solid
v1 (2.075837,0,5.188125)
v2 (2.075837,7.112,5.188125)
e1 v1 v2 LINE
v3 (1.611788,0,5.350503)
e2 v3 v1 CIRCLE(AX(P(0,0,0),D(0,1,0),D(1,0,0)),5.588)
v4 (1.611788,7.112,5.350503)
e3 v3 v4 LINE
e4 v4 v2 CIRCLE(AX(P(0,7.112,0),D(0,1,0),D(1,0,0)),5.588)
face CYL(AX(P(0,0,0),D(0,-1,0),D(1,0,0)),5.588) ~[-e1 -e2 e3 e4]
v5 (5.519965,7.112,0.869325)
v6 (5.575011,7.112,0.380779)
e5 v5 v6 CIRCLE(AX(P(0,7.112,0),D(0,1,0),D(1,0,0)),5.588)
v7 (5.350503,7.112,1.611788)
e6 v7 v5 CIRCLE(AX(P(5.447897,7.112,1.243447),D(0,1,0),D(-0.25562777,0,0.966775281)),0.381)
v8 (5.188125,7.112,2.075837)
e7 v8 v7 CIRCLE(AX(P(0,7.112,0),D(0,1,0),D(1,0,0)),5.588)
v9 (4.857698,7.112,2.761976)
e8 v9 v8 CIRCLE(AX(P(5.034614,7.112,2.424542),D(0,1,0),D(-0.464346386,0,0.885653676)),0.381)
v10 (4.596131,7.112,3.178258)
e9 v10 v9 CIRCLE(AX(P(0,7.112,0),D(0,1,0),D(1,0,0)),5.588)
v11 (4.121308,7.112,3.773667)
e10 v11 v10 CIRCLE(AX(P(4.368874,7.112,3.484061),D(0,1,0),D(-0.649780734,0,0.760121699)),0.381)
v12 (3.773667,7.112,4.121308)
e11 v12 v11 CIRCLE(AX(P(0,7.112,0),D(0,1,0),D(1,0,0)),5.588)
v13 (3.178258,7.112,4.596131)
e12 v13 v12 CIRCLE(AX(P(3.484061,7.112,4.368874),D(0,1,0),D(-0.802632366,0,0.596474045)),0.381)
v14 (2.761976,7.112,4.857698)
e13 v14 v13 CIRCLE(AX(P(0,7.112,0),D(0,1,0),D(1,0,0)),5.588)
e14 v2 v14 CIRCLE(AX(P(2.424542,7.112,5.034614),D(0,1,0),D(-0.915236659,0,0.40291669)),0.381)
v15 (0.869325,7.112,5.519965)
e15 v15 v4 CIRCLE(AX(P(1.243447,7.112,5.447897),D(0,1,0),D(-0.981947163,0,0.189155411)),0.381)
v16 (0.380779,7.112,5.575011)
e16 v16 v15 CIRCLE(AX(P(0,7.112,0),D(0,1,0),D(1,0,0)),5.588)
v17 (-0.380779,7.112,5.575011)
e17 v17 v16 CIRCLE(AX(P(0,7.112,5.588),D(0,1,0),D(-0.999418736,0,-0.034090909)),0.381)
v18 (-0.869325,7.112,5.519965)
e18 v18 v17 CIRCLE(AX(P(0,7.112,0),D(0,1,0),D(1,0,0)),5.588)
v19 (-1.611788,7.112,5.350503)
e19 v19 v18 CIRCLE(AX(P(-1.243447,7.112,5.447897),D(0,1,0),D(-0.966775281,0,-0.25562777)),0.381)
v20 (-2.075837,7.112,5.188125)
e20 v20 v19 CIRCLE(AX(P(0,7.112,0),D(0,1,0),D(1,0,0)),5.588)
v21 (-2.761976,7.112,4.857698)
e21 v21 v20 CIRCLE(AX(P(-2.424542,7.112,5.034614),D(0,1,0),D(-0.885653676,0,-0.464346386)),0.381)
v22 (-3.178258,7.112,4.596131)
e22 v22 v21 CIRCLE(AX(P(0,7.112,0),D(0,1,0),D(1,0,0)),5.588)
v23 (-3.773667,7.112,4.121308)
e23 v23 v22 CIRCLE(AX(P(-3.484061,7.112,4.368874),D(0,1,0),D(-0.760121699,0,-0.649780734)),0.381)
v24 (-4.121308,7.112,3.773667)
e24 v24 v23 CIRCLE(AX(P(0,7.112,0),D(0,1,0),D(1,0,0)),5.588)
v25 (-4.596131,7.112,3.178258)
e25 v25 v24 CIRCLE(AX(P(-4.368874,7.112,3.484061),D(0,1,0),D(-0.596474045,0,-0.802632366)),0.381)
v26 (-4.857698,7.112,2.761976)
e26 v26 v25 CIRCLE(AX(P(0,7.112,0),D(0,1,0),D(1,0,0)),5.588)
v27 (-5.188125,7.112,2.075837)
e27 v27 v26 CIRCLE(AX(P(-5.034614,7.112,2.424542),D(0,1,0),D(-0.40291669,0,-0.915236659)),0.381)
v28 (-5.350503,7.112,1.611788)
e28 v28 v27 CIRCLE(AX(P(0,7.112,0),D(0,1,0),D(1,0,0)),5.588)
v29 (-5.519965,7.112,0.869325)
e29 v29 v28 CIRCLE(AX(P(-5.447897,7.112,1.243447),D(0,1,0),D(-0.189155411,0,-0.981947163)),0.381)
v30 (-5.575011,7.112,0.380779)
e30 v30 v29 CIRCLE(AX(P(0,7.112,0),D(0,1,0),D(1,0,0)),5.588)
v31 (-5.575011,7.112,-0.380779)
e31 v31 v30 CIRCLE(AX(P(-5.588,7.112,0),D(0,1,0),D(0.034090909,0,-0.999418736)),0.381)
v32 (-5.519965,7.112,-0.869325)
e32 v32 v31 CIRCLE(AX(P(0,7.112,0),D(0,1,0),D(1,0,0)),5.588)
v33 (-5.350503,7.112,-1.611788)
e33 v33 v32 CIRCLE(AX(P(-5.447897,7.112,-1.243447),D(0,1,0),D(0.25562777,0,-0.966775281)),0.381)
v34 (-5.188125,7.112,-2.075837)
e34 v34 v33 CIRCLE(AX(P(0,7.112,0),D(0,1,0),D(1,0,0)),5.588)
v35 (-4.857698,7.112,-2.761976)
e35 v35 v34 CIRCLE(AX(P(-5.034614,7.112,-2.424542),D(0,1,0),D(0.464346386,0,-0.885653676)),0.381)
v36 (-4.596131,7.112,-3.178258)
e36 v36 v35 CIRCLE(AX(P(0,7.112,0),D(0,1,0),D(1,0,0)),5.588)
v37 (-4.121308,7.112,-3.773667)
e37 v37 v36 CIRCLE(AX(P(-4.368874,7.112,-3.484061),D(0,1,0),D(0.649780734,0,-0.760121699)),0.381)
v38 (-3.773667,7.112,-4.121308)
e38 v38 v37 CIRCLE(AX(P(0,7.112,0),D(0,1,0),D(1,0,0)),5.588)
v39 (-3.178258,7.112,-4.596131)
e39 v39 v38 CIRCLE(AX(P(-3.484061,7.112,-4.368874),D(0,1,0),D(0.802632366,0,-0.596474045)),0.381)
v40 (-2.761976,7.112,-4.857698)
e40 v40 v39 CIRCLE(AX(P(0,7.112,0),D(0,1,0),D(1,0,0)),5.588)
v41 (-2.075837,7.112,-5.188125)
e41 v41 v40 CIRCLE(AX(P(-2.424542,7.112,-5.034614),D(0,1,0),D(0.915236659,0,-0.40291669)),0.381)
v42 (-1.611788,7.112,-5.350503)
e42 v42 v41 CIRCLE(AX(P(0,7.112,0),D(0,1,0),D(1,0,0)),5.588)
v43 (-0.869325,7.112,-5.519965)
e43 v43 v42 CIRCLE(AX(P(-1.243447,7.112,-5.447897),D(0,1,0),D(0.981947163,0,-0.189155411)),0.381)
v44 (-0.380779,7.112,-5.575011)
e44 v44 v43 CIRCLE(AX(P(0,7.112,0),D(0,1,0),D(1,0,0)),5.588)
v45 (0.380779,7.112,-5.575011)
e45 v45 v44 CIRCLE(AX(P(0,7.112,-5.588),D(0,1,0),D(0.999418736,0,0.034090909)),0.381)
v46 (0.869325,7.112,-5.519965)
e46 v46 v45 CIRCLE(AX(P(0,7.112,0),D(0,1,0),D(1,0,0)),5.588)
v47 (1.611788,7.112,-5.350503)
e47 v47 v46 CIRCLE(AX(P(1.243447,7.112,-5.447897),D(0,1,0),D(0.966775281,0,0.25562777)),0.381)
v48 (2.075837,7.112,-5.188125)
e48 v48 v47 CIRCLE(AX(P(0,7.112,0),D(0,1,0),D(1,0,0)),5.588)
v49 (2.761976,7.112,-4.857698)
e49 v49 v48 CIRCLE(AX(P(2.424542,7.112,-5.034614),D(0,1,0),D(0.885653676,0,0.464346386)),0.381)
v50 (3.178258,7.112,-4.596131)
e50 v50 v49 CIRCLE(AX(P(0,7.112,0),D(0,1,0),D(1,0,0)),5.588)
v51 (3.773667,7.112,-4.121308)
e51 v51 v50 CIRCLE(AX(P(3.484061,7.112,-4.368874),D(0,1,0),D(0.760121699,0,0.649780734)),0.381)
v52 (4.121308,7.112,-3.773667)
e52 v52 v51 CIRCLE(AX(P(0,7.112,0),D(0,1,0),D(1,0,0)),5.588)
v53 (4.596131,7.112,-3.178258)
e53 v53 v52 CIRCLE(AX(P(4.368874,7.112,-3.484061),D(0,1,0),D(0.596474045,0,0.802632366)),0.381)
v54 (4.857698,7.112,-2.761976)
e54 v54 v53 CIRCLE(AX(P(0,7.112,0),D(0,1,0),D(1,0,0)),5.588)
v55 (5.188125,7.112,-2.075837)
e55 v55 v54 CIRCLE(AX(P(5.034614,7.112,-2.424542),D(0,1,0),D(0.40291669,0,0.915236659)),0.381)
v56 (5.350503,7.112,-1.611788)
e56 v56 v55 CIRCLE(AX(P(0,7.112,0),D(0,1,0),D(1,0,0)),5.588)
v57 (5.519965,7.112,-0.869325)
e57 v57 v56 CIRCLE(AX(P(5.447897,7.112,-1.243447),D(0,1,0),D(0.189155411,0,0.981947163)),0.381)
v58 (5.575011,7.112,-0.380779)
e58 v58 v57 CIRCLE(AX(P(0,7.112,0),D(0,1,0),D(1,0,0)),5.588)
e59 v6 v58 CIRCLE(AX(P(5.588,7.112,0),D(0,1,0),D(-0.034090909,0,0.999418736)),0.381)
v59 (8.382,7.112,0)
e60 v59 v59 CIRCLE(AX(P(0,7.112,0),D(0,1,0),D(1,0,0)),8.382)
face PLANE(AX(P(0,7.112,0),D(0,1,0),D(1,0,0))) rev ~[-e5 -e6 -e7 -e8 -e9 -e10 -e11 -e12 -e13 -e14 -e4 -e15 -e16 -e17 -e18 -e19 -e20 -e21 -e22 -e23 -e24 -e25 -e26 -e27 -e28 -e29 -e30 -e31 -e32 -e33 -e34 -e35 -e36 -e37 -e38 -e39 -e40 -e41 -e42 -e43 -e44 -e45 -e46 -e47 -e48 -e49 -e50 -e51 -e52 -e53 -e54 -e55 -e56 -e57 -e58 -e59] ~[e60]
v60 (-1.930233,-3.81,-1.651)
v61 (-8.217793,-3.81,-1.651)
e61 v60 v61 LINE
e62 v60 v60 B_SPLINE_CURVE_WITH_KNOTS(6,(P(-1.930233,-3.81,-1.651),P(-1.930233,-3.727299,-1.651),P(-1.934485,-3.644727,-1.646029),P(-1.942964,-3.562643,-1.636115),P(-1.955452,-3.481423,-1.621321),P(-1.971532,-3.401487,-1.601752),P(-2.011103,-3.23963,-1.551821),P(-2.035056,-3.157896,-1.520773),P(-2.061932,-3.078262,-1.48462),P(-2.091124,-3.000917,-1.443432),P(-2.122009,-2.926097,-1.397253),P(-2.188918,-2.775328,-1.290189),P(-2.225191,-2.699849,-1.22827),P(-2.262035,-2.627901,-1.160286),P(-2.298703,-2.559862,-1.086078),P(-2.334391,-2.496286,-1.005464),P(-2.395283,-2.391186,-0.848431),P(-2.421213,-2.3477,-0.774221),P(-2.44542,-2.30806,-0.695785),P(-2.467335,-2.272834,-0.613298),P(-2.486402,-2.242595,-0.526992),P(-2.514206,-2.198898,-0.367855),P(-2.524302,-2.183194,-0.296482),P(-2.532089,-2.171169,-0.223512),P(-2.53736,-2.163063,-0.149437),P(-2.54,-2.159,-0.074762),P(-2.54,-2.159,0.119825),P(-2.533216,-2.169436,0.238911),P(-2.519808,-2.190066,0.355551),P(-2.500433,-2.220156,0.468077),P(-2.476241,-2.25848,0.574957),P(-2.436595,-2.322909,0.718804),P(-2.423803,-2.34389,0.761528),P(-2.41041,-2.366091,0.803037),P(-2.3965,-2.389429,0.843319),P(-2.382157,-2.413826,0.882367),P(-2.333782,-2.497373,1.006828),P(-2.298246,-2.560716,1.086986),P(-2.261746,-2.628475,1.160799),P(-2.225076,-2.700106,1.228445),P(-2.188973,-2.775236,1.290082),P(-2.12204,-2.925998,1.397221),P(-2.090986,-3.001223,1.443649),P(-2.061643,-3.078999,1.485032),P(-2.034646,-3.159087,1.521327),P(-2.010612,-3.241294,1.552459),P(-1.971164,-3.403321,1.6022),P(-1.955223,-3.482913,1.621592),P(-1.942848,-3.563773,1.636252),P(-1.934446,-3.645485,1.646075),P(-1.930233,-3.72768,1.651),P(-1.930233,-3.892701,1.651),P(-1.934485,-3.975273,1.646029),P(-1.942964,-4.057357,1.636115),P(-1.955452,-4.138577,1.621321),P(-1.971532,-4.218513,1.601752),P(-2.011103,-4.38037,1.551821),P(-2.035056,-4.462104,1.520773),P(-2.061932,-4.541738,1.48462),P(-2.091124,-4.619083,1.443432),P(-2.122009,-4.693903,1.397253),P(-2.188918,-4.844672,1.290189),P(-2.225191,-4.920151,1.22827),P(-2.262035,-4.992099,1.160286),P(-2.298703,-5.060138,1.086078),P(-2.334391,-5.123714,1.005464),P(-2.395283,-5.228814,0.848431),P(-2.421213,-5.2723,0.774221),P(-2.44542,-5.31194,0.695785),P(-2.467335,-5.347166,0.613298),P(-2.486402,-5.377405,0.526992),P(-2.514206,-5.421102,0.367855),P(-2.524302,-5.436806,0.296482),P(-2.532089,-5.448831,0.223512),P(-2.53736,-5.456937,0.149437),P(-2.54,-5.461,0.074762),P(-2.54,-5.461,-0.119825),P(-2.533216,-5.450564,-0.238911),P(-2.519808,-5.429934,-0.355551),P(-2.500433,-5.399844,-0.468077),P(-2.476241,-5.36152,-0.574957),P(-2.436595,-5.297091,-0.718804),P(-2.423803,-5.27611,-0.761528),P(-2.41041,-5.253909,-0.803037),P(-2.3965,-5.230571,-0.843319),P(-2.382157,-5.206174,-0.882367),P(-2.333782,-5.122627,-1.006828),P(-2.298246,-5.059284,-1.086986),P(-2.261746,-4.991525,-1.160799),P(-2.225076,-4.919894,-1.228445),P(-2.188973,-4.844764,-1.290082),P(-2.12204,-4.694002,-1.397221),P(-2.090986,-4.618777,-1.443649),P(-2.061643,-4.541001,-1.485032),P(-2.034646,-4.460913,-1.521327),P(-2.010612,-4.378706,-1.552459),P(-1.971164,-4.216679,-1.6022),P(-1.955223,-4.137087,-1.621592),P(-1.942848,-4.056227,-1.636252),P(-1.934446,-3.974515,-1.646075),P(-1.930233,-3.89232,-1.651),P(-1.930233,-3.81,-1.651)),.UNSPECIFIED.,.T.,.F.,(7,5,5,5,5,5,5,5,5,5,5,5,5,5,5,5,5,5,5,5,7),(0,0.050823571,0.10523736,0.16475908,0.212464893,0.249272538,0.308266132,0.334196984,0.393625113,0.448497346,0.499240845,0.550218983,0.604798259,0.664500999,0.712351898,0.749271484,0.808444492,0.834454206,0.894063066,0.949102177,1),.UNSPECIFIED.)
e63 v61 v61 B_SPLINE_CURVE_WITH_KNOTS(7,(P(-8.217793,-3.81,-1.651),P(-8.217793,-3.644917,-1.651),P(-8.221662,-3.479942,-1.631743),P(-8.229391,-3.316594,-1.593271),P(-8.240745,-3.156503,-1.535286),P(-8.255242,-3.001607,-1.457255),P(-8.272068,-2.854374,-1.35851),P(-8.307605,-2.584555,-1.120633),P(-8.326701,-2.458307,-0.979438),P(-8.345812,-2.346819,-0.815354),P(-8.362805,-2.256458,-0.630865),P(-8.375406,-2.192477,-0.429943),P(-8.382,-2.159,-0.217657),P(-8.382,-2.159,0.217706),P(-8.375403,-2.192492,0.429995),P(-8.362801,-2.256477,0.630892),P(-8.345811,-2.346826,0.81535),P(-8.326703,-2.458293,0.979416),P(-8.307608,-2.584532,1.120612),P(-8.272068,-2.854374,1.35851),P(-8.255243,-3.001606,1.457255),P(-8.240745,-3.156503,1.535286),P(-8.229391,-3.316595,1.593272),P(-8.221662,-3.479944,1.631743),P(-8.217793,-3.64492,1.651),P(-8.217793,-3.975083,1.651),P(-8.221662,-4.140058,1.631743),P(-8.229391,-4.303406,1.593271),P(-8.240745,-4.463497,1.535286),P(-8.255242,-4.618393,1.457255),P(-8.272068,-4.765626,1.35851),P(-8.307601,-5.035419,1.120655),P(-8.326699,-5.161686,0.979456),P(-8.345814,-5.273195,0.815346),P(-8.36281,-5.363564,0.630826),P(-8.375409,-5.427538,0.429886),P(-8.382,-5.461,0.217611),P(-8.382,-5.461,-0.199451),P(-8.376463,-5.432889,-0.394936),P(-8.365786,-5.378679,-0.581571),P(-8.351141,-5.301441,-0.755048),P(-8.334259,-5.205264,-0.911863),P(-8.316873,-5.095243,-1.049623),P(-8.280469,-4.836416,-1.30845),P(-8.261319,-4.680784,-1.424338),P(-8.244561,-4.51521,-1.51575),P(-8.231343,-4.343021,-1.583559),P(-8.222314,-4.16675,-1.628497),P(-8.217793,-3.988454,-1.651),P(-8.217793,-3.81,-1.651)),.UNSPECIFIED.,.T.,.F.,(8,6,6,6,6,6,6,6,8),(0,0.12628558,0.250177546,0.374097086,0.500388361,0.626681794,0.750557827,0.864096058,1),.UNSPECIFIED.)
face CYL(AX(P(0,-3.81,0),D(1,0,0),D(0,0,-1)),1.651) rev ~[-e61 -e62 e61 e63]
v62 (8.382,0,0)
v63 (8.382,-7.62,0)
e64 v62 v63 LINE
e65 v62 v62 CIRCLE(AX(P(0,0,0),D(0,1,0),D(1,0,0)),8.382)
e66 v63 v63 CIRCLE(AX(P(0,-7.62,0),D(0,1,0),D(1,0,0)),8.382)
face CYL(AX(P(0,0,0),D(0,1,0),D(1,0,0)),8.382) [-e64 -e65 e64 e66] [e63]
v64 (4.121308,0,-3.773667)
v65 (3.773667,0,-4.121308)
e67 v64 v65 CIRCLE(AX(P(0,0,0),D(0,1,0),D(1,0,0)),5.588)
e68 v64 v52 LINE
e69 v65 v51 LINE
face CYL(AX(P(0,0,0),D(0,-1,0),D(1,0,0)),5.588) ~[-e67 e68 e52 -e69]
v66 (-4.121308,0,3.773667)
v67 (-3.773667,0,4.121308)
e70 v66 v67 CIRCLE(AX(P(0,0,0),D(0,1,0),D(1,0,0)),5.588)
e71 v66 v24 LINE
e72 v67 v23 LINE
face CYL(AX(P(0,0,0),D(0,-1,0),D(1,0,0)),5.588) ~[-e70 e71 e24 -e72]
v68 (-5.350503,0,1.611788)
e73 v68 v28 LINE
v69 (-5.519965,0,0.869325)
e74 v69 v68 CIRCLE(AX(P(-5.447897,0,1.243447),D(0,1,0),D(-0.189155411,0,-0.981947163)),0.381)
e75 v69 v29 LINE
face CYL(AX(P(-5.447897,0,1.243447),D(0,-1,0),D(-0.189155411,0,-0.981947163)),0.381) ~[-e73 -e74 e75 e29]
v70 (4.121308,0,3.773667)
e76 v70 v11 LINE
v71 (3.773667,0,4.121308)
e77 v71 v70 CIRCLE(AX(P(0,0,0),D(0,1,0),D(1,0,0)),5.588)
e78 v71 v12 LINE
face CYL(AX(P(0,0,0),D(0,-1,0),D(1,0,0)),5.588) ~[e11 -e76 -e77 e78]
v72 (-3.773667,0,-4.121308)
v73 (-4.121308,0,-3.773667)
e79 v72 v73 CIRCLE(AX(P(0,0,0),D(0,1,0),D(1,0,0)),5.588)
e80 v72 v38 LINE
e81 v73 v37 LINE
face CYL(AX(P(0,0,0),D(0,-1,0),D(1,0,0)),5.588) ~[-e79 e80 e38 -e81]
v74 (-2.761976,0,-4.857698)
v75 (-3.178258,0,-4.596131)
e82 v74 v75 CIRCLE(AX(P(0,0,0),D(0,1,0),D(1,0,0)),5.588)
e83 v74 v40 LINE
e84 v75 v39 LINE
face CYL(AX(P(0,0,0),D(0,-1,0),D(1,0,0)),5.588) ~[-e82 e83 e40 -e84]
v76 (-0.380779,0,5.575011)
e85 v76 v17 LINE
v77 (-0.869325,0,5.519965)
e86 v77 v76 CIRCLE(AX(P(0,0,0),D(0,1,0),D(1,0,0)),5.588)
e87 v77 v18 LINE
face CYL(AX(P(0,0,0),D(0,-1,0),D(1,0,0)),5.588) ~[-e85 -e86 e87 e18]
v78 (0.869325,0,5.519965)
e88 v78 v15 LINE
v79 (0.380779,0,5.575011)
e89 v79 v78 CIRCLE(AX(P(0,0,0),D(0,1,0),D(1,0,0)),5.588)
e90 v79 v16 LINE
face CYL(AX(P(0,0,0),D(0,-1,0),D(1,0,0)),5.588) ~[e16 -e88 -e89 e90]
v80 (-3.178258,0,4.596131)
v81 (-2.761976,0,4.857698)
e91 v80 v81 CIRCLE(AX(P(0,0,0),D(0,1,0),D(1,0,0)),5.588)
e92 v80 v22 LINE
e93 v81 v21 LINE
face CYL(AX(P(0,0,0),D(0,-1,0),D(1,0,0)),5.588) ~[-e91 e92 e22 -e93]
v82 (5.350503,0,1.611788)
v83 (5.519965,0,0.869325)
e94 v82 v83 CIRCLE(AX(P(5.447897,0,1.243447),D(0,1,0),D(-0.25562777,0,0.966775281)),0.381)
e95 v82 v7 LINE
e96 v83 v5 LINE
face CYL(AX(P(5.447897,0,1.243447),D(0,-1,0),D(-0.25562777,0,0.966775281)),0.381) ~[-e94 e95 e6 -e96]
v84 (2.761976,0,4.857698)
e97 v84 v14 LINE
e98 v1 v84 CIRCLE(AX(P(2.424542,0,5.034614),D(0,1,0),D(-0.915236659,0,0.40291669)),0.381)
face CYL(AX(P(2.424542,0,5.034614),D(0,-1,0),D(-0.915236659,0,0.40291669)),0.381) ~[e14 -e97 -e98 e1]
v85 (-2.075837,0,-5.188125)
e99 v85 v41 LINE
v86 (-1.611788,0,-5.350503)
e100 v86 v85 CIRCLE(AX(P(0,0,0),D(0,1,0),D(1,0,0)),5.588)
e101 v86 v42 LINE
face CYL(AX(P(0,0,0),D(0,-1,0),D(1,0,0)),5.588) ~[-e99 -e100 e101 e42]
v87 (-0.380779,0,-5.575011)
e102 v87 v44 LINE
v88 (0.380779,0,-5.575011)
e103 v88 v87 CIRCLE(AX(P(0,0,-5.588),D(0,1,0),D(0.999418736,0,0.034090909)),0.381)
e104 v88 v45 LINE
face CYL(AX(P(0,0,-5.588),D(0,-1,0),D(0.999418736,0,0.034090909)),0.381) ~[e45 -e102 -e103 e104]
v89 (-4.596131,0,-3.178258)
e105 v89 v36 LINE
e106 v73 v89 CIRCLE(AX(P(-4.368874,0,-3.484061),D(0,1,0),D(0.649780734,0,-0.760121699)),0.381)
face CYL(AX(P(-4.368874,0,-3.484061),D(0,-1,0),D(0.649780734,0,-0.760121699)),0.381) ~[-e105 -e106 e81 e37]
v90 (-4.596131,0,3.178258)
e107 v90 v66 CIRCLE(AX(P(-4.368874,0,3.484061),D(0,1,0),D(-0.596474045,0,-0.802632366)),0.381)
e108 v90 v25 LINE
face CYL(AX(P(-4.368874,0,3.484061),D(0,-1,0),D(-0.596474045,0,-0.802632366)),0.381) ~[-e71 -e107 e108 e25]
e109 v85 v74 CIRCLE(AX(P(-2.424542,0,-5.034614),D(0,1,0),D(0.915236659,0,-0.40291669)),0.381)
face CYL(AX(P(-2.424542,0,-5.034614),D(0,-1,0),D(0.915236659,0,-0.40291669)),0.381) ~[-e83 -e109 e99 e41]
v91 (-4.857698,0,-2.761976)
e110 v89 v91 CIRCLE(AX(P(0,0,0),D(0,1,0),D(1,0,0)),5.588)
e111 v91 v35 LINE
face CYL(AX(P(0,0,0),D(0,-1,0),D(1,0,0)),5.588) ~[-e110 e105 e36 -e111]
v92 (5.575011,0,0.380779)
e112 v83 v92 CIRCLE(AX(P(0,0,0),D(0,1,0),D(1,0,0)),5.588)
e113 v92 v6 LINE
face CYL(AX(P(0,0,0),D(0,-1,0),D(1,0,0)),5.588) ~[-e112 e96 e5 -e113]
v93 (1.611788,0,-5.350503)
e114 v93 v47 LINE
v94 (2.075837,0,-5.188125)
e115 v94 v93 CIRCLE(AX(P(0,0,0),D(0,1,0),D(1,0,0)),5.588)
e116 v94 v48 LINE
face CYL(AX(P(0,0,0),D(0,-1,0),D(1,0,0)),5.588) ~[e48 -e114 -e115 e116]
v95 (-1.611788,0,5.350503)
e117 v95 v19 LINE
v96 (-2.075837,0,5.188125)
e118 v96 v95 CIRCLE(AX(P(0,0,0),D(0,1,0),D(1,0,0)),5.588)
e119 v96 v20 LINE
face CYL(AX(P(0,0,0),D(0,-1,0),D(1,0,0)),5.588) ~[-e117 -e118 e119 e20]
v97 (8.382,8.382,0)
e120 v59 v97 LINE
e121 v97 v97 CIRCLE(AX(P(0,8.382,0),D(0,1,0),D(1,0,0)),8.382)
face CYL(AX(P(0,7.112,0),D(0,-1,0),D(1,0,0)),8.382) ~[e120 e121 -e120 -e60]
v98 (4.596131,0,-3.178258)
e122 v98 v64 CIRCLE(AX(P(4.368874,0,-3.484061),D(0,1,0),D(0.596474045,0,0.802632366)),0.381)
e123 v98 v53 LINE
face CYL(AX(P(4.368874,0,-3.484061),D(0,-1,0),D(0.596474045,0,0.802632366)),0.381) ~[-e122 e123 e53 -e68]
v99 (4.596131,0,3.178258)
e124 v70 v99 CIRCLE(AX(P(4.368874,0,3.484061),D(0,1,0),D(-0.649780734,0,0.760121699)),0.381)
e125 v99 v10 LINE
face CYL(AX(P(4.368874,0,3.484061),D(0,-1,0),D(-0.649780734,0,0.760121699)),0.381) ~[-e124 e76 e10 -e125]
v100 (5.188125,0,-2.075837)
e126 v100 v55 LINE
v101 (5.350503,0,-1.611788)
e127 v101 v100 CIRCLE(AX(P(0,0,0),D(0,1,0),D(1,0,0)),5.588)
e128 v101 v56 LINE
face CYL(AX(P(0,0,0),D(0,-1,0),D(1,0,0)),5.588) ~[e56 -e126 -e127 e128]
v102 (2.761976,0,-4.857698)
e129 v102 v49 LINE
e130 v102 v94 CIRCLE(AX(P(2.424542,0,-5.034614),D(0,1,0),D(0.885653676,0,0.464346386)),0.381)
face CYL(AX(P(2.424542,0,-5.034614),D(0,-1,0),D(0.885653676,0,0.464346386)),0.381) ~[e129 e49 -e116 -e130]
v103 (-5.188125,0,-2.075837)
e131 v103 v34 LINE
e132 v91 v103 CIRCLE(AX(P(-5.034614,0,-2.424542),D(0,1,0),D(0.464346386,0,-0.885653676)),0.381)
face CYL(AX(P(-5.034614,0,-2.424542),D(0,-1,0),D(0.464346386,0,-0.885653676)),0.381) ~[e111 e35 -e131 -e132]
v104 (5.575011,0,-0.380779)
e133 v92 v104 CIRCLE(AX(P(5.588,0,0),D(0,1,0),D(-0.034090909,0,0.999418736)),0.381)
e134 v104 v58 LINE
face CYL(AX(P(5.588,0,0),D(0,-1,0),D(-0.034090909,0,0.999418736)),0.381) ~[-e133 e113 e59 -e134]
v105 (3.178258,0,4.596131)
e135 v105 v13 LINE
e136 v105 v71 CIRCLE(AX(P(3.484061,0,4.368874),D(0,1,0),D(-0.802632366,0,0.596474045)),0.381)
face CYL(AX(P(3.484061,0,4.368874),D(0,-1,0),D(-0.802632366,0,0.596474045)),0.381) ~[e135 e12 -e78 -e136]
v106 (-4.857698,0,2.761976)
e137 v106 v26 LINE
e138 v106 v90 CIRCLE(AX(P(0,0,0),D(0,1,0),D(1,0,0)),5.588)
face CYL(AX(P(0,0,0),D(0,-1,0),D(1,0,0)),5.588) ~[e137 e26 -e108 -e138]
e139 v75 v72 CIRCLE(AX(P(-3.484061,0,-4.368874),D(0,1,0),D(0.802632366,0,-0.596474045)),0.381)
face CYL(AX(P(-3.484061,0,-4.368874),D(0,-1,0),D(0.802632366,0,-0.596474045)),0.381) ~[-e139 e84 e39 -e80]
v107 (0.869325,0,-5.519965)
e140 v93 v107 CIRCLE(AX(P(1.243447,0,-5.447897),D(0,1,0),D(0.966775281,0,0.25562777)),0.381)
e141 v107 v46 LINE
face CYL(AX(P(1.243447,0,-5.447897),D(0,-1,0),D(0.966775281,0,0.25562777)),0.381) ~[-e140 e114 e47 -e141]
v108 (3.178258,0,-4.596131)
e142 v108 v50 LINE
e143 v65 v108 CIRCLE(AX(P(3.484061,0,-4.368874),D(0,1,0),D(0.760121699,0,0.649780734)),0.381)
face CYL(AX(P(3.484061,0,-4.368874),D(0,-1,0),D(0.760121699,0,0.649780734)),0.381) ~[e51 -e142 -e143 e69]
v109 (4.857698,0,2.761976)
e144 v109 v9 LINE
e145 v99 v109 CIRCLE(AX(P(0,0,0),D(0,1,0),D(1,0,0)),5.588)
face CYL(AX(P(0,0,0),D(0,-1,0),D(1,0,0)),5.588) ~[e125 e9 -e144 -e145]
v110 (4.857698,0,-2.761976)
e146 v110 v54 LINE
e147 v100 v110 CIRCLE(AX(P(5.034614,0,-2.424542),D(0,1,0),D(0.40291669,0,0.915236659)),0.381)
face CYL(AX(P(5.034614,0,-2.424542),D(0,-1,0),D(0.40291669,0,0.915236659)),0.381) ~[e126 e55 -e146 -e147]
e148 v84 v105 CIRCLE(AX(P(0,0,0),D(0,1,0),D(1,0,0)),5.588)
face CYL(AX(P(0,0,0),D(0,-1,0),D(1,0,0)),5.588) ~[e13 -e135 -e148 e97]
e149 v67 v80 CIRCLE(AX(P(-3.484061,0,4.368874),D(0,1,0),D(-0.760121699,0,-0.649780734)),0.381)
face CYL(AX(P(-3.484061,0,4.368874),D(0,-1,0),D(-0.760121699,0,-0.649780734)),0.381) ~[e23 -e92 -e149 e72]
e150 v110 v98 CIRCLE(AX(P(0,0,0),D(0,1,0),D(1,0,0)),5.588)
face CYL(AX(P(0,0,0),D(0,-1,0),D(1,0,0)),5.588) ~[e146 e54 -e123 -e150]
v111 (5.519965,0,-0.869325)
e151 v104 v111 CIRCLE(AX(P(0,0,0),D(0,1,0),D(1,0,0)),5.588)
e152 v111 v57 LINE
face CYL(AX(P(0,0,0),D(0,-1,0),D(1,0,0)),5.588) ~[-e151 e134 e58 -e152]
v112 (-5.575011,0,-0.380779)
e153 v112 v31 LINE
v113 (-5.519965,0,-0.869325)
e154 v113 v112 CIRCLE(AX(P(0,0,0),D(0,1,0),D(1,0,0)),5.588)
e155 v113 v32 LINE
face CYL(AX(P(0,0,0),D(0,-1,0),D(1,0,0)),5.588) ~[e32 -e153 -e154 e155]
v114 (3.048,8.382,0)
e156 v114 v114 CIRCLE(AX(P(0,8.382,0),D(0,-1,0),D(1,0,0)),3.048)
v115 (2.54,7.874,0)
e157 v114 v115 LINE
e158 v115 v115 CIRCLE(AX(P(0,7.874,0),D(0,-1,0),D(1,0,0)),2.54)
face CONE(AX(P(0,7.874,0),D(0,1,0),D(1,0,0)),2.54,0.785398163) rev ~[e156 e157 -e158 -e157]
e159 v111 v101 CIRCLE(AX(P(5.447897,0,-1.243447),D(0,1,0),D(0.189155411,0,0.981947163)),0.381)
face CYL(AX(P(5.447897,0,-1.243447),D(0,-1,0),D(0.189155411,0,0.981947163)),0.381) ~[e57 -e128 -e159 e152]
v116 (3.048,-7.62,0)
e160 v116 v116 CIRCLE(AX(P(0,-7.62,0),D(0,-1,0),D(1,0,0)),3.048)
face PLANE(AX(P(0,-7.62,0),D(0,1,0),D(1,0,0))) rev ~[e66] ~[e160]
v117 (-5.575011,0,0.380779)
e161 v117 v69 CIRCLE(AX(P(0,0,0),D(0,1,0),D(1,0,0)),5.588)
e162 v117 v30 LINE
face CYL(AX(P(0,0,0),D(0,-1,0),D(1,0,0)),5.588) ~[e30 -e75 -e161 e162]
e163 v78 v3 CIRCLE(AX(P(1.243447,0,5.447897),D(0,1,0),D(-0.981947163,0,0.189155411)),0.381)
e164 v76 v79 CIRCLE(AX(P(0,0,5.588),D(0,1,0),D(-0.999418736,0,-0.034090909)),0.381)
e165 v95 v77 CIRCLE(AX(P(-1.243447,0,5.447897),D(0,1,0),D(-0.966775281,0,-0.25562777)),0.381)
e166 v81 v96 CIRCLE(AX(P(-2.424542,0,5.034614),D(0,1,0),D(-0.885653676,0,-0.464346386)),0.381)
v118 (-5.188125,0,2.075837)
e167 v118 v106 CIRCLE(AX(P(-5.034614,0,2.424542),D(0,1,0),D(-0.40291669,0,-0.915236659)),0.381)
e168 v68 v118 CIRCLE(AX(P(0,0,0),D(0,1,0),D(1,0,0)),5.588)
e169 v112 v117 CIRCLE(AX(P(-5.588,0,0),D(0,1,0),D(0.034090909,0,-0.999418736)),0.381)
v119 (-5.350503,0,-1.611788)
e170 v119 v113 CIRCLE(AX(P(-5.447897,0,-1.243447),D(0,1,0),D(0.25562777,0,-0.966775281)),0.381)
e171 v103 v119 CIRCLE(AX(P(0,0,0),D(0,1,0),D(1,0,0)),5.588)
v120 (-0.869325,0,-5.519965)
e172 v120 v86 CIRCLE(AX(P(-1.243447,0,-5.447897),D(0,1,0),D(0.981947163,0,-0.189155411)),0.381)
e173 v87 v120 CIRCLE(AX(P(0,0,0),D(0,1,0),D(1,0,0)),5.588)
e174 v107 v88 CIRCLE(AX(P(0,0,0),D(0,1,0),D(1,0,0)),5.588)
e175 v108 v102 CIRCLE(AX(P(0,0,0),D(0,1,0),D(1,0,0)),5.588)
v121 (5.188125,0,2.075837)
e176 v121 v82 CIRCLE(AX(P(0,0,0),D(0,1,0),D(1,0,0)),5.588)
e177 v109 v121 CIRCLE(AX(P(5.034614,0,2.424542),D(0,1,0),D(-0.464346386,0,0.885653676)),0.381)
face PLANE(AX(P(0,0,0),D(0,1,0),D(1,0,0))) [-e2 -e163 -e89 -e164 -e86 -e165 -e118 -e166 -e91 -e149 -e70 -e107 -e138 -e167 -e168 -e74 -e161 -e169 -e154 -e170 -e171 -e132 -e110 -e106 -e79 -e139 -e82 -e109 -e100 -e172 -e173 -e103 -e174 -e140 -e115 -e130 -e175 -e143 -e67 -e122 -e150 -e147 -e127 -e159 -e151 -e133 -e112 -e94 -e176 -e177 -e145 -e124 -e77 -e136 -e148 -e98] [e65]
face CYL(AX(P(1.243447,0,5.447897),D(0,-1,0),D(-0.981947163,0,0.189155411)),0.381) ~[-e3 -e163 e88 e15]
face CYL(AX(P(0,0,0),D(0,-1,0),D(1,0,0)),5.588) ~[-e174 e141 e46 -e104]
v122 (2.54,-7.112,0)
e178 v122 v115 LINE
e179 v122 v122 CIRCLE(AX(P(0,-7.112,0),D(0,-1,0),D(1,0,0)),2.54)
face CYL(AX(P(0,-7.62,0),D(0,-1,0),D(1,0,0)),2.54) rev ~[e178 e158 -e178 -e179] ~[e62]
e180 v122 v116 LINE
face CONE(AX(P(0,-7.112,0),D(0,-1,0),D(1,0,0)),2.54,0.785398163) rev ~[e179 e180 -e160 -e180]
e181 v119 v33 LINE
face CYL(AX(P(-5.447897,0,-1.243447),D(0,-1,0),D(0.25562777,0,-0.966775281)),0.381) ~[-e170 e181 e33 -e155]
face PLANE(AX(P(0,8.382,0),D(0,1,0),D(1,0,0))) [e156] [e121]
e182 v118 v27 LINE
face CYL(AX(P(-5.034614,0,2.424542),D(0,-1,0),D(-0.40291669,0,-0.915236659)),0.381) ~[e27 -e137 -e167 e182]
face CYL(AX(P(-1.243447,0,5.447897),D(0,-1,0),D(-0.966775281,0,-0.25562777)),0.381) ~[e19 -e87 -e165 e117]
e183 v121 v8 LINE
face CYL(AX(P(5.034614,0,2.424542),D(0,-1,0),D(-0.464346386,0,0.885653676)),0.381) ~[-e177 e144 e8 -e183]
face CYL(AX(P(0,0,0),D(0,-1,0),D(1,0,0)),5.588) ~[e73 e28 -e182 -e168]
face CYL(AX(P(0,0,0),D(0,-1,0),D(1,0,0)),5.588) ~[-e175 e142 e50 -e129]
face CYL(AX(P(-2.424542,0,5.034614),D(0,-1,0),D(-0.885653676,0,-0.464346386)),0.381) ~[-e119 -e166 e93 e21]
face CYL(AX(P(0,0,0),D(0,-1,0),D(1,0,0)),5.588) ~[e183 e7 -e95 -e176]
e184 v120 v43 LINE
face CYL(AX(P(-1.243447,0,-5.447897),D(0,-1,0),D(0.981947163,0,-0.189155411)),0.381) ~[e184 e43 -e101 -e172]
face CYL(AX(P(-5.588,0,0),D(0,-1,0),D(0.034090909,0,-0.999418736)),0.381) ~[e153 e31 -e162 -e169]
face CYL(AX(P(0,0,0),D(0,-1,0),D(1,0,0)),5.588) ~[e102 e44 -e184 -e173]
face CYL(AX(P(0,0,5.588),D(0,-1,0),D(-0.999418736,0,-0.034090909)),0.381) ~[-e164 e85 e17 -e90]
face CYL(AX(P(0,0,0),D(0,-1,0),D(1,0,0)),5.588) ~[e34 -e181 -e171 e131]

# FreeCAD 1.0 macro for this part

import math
import FreeCAD as App
import Part
import Sketcher
from FreeCAD import Vector
Q = App.Units.Quantity


def edges_at(feature, points):
    """Names of the edges that pass closest to the given points."""
    edges = feature.Shape.Edges
    near = lambda p: min(range(len(edges)), key=lambda i: edges[i].distToShape(Part.Vertex(*p))[0])
    return sorted({f"Edge{near(p) + 1}" for p in points})

doc = App.newDocument("Part")
params = doc.addObject("Spreadsheet::Sheet", "Params")
for row, (alias, value) in enumerate([
    ("sketch1_diameter", "0.66 in"),
    ("pad1_length", "0.3 in"),
    ("sketch2_radius", "0.22 in"),
    ("sketch2_radius2", "0.015 in"),
    ("pad2_length", "0.28 in"),
    ("sketch3_diameter", "0.66 in"),
    ("pad3_length", "0.05 in"),
    ("sketch4_diameter", "0.2 in"),
    ("chamfer_size", "0.02 in"),
    ("sketch5_diameter", "0.13 in"),
], start=1):
    params.set(f"A{row}", alias)
    params.set(f"B{row}", "=" + value)
    params.setAlias(f"B{row}", alias)

body = doc.addObject("PartDesign::Body", "Body")

sketch1 = body.newObject("Sketcher::SketchObject", "Sketch")
sketch1.AttachmentSupport = (doc.getObject("XZ_Plane"), [""])
sketch1.MapMode = "FlatFace"
sketch1.addGeometry(Part.Circle(Vector(0, 0, 0), Vector(0, 0, 1), 8), False)
sketch1.addConstraint([
    Sketcher.Constraint("Coincident", 0, 3, -1, 1),
    Sketcher.Constraint("Diameter", 0, Q("0.66 in")),
])
sketch1.setExpression("Constraints[1]", "Params.sketch1_diameter")
pad1 = body.newObject("PartDesign::Pad", "Pad")
pad1.Profile = sketch1
pad1.setExpression("Length", "Params.pad1_length")

sketch2 = body.newObject("Sketcher::SketchObject", "Sketch001")
sketch2.AttachmentSupport = (doc.getObject("XZ_Plane"), [""])
sketch2.MapMode = "FlatFace"
sketch2.addGeometry([
    Part.ArcOfCircle(Part.Circle(Vector(-4.37, -3.48, 0), Vector(0, 0, 1), 0.38), math.radians(127), math.radians(311)),
    Part.ArcOfCircle(Part.Circle(Vector(0, 0, 0), Vector(0, 0, 1), 5.59), math.radians(-150.38), math.radians(-145.34)),
    Part.ArcOfCircle(Part.Circle(Vector(-5.03, -2.42, 0), Vector(0, 0, 1), 0.38), math.radians(114), math.radians(298)),
    Part.ArcOfCircle(Part.Circle(Vector(0, 0, 0), Vector(0, 0, 1), 5.59), math.radians(-163.24), math.radians(-158.19)),
    Part.ArcOfCircle(Part.Circle(Vector(-5.45, -1.24, 0), Vector(0, 0, 1), 0.38), math.radians(101), math.radians(285)),
    Part.ArcOfCircle(Part.Circle(Vector(0, 0, 0), Vector(0, 0, 1), 5.59), math.radians(-176.09), math.radians(-171.05)),
    Part.ArcOfCircle(Part.Circle(Vector(-5.59, 0, 0), Vector(0, 0, 1), 0.38), math.radians(88), math.radians(272)),
    Part.ArcOfCircle(Part.Circle(Vector(0, 0, 0), Vector(0, 0, 1), 5.59), math.radians(171.05), math.radians(176.09)),
    Part.ArcOfCircle(Part.Circle(Vector(-5.45, 1.24, 0), Vector(0, 0, 1), 0.38), math.radians(75), math.radians(259)),
    Part.ArcOfCircle(Part.Circle(Vector(0, 0, 0), Vector(0, 0, 1), 5.59), math.radians(158.19), math.radians(163.24)),
    Part.ArcOfCircle(Part.Circle(Vector(-5.03, 2.42, 0), Vector(0, 0, 1), 0.38), math.radians(62), math.radians(246)),
    Part.ArcOfCircle(Part.Circle(Vector(0, 0, 0), Vector(0, 0, 1), 5.59), math.radians(145.34), math.radians(150.38)),
    Part.ArcOfCircle(Part.Circle(Vector(-4.37, 3.48, 0), Vector(0, 0, 1), 0.38), math.radians(49), math.radians(233)),
    Part.ArcOfCircle(Part.Circle(Vector(0, 0, 0), Vector(0, 0, 1), 5.59), math.radians(132.48), math.radians(137.52)),
    Part.ArcOfCircle(Part.Circle(Vector(-3.48, 4.37, 0), Vector(0, 0, 1), 0.38), math.radians(37), math.radians(221)),
    Part.ArcOfCircle(Part.Circle(Vector(0, 0, 0), Vector(0, 0, 1), 5.59), math.radians(119.62), math.radians(124.66)),
    Part.ArcOfCircle(Part.Circle(Vector(-2.42, 5.03, 0), Vector(0, 0, 1), 0.38), math.radians(24), math.radians(208)),
    Part.ArcOfCircle(Part.Circle(Vector(0, 0, 0), Vector(0, 0, 1), 5.59), math.radians(106.76), math.radians(111.81)),
    Part.ArcOfCircle(Part.Circle(Vector(-1.24, 5.45, 0), Vector(0, 0, 1), 0.38), math.radians(11), math.radians(195)),
    Part.ArcOfCircle(Part.Circle(Vector(0, 0, 0), Vector(0, 0, 1), 5.59), math.radians(93.91), math.radians(98.95)),
    Part.ArcOfCircle(Part.Circle(Vector(0, 5.59, 0), Vector(0, 0, 1), 0.38), math.radians(-2), math.radians(182)),
    Part.ArcOfCircle(Part.Circle(Vector(0, 0, 0), Vector(0, 0, 1), 5.59), math.radians(81.05), math.radians(86.09)),
    Part.ArcOfCircle(Part.Circle(Vector(1.24, 5.45, 0), Vector(0, 0, 1), 0.38), math.radians(-15), math.radians(169)),
    Part.ArcOfCircle(Part.Circle(Vector(0, 0, 0), Vector(0, 0, 1), 5.59), math.radians(68.19), math.radians(73.24)),
    Part.ArcOfCircle(Part.Circle(Vector(2.42, 5.03, 0), Vector(0, 0, 1), 0.38), math.radians(-28), math.radians(156)),
    Part.ArcOfCircle(Part.Circle(Vector(0, 0, 0), Vector(0, 0, 1), 5.59), math.radians(55.34), math.radians(60.38)),
    Part.ArcOfCircle(Part.Circle(Vector(3.48, 4.37, 0), Vector(0, 0, 1), 0.38), math.radians(-41), math.radians(143)),
    Part.ArcOfCircle(Part.Circle(Vector(0, 0, 0), Vector(0, 0, 1), 5.59), math.radians(42.48), math.radians(47.52)),
    Part.ArcOfCircle(Part.Circle(Vector(4.37, 3.48, 0), Vector(0, 0, 1), 0.38), math.radians(-53), math.radians(131)),
    Part.ArcOfCircle(Part.Circle(Vector(0, 0, 0), Vector(0, 0, 1), 5.59), math.radians(29.62), math.radians(34.66)),
    Part.ArcOfCircle(Part.Circle(Vector(5.03, 2.42, 0), Vector(0, 0, 1), 0.38), math.radians(-66), math.radians(118)),
    Part.ArcOfCircle(Part.Circle(Vector(0, 0, 0), Vector(0, 0, 1), 5.59), math.radians(16.76), math.radians(21.81)),
    Part.ArcOfCircle(Part.Circle(Vector(5.45, 1.24, 0), Vector(0, 0, 1), 0.38), math.radians(-79), math.radians(105)),
    Part.ArcOfCircle(Part.Circle(Vector(0, 0, 0), Vector(0, 0, 1), 5.59), math.radians(3.91), math.radians(8.95)),
    Part.ArcOfCircle(Part.Circle(Vector(5.59, 0, 0), Vector(0, 0, 1), 0.38), math.radians(-92), math.radians(92)),
    Part.ArcOfCircle(Part.Circle(Vector(0, 0, 0), Vector(0, 0, 1), 5.59), math.radians(-8.95), math.radians(-3.91)),
    Part.ArcOfCircle(Part.Circle(Vector(5.45, -1.24, 0), Vector(0, 0, 1), 0.38), math.radians(-105), math.radians(79)),
    Part.ArcOfCircle(Part.Circle(Vector(0, 0, 0), Vector(0, 0, 1), 5.59), math.radians(-21.81), math.radians(-16.76)),
    Part.ArcOfCircle(Part.Circle(Vector(5.03, -2.42, 0), Vector(0, 0, 1), 0.38), math.radians(-118), math.radians(66)),
    Part.ArcOfCircle(Part.Circle(Vector(0, 0, 0), Vector(0, 0, 1), 5.59), math.radians(-34.66), math.radians(-29.62)),
    Part.ArcOfCircle(Part.Circle(Vector(4.37, -3.48, 0), Vector(0, 0, 1), 0.38), math.radians(-131), math.radians(53)),
    Part.ArcOfCircle(Part.Circle(Vector(0, 0, 0), Vector(0, 0, 1), 5.59), math.radians(-47.52), math.radians(-42.48)),
    Part.ArcOfCircle(Part.Circle(Vector(3.48, -4.37, 0), Vector(0, 0, 1), 0.38), math.radians(-143), math.radians(41)),
    Part.ArcOfCircle(Part.Circle(Vector(0, 0, 0), Vector(0, 0, 1), 5.59), math.radians(-60.38), math.radians(-55.34)),
    Part.ArcOfCircle(Part.Circle(Vector(2.42, -5.03, 0), Vector(0, 0, 1), 0.38), math.radians(-156), math.radians(28)),
    Part.ArcOfCircle(Part.Circle(Vector(0, 0, 0), Vector(0, 0, 1), 5.59), math.radians(-73.24), math.radians(-68.19)),
    Part.ArcOfCircle(Part.Circle(Vector(1.24, -5.45, 0), Vector(0, 0, 1), 0.38), math.radians(-169), math.radians(15)),
    Part.ArcOfCircle(Part.Circle(Vector(0, 0, 0), Vector(0, 0, 1), 5.59), math.radians(-86.09), math.radians(-81.05)),
    Part.ArcOfCircle(Part.Circle(Vector(0, -5.59, 0), Vector(0, 0, 1), 0.38), math.radians(178), math.radians(362)),
    Part.ArcOfCircle(Part.Circle(Vector(0, 0, 0), Vector(0, 0, 1), 5.59), math.radians(-98.95), math.radians(-93.91)),
    Part.ArcOfCircle(Part.Circle(Vector(-1.24, -5.45, 0), Vector(0, 0, 1), 0.38), math.radians(165), math.radians(349)),
    Part.ArcOfCircle(Part.Circle(Vector(0, 0, 0), Vector(0, 0, 1), 5.59), math.radians(-111.81), math.radians(-106.76)),
    Part.ArcOfCircle(Part.Circle(Vector(-2.42, -5.03, 0), Vector(0, 0, 1), 0.38), math.radians(152), math.radians(336)),
    Part.ArcOfCircle(Part.Circle(Vector(0, 0, 0), Vector(0, 0, 1), 5.59), math.radians(-124.66), math.radians(-119.62)),
    Part.ArcOfCircle(Part.Circle(Vector(-3.48, -4.37, 0), Vector(0, 0, 1), 0.38), math.radians(139), math.radians(323)),
    Part.ArcOfCircle(Part.Circle(Vector(0, 0, 0), Vector(0, 0, 1), 5.59), math.radians(-137.52), math.radians(-132.48)),
], False)
sketch2.addConstraint([
    Sketcher.Constraint("Coincident", 0, 1, 1, 2),
    Sketcher.Constraint("Coincident", 1, 1, 2, 2),
    Sketcher.Constraint("Coincident", 2, 1, 3, 2),
    Sketcher.Constraint("Coincident", 3, 1, 4, 2),
    Sketcher.Constraint("Coincident", 4, 1, 5, 2),
    Sketcher.Constraint("Coincident", 5, 1, 6, 2),
    Sketcher.Constraint("Coincident", 6, 1, 7, 2),
    Sketcher.Constraint("Coincident", 7, 1, 8, 2),
    Sketcher.Constraint("Coincident", 8, 1, 9, 2),
    Sketcher.Constraint("Coincident", 9, 1, 10, 2),
    Sketcher.Constraint("Coincident", 10, 1, 11, 2),
    Sketcher.Constraint("Coincident", 11, 1, 12, 2),
    Sketcher.Constraint("Coincident", 12, 1, 13, 2),
    Sketcher.Constraint("Coincident", 13, 1, 14, 2),
    Sketcher.Constraint("Coincident", 14, 1, 15, 2),
    Sketcher.Constraint("Coincident", 15, 1, 16, 2),
    Sketcher.Constraint("Coincident", 16, 1, 17, 2),
    Sketcher.Constraint("Coincident", 17, 1, 18, 2),
    Sketcher.Constraint("Coincident", 18, 1, 19, 2),
    Sketcher.Constraint("Coincident", 19, 1, 20, 2),
    Sketcher.Constraint("Coincident", 20, 1, 21, 2),
    Sketcher.Constraint("Coincident", 21, 1, 22, 2),
    Sketcher.Constraint("Coincident", 22, 1, 23, 2),
    Sketcher.Constraint("Coincident", 23, 1, 24, 2),
    Sketcher.Constraint("Coincident", 24, 1, 25, 2),
    Sketcher.Constraint("Coincident", 25, 1, 26, 2),
    Sketcher.Constraint("Coincident", 26, 1, 27, 2),
    Sketcher.Constraint("Coincident", 27, 1, 28, 2),
    Sketcher.Constraint("Coincident", 28, 1, 29, 2),
    Sketcher.Constraint("Coincident", 29, 1, 30, 2),
    Sketcher.Constraint("Coincident", 30, 1, 31, 2),
    Sketcher.Constraint("Coincident", 31, 1, 32, 2),
    Sketcher.Constraint("Coincident", 32, 1, 33, 2),
    Sketcher.Constraint("Coincident", 33, 1, 34, 2),
    Sketcher.Constraint("Coincident", 34, 1, 35, 2),
    Sketcher.Constraint("Coincident", 35, 1, 36, 2),
    Sketcher.Constraint("Coincident", 36, 1, 37, 2),
    Sketcher.Constraint("Coincident", 37, 1, 38, 2),
    Sketcher.Constraint("Coincident", 38, 1, 39, 2),
    Sketcher.Constraint("Coincident", 39, 1, 40, 2),
    Sketcher.Constraint("Coincident", 40, 1, 41, 2),
    Sketcher.Constraint("Coincident", 41, 1, 42, 2),
    Sketcher.Constraint("Coincident", 42, 1, 43, 2),
    Sketcher.Constraint("Coincident", 43, 1, 44, 2),
    Sketcher.Constraint("Coincident", 44, 1, 45, 2),
    Sketcher.Constraint("Coincident", 45, 1, 46, 2),
    Sketcher.Constraint("Coincident", 46, 1, 47, 2),
    Sketcher.Constraint("Coincident", 47, 1, 48, 2),
    Sketcher.Constraint("Coincident", 48, 1, 49, 2),
    Sketcher.Constraint("Coincident", 49, 1, 50, 2),
    Sketcher.Constraint("Coincident", 50, 1, 51, 2),
    Sketcher.Constraint("Coincident", 51, 1, 52, 2),
    Sketcher.Constraint("Coincident", 52, 1, 53, 2),
    Sketcher.Constraint("Coincident", 53, 1, 54, 2),
    Sketcher.Constraint("Coincident", 54, 1, 55, 2),
    Sketcher.Constraint("Coincident", 55, 1, 0, 2),
    Sketcher.Constraint("Coincident", 1, 3, -1, 1),
    Sketcher.Constraint("Coincident", 3, 3, -1, 1),
    Sketcher.Constraint("Coincident", 5, 3, -1, 1),
    Sketcher.Constraint("Coincident", 7, 3, -1, 1),
    Sketcher.Constraint("Coincident", 9, 3, -1, 1),
    Sketcher.Constraint("Coincident", 11, 3, -1, 1),
    Sketcher.Constraint("Coincident", 13, 3, -1, 1),
    Sketcher.Constraint("Coincident", 15, 3, -1, 1),
    Sketcher.Constraint("Coincident", 17, 3, -1, 1),
    Sketcher.Constraint("Coincident", 19, 3, -1, 1),
    Sketcher.Constraint("Coincident", 21, 3, -1, 1),
    Sketcher.Constraint("Coincident", 23, 3, -1, 1),
    Sketcher.Constraint("Coincident", 25, 3, -1, 1),
    Sketcher.Constraint("Coincident", 27, 3, -1, 1),
    Sketcher.Constraint("Coincident", 29, 3, -1, 1),
    Sketcher.Constraint("Coincident", 31, 3, -1, 1),
    Sketcher.Constraint("Coincident", 33, 3, -1, 1),
    Sketcher.Constraint("Coincident", 35, 3, -1, 1),
    Sketcher.Constraint("Coincident", 37, 3, -1, 1),
    Sketcher.Constraint("Coincident", 39, 3, -1, 1),
    Sketcher.Constraint("Coincident", 41, 3, -1, 1),
    Sketcher.Constraint("Coincident", 43, 3, -1, 1),
    Sketcher.Constraint("Coincident", 45, 3, -1, 1),
    Sketcher.Constraint("Coincident", 47, 3, -1, 1),
    Sketcher.Constraint("Coincident", 49, 3, -1, 1),
    Sketcher.Constraint("Coincident", 51, 3, -1, 1),
    Sketcher.Constraint("Coincident", 53, 3, -1, 1),
    Sketcher.Constraint("Coincident", 55, 3, -1, 1),
    Sketcher.Constraint("Equal", 0, 2),
    Sketcher.Constraint("Equal", 1, 3),
    Sketcher.Constraint("Equal", 2, 4),
    Sketcher.Constraint("Equal", 3, 5),
    Sketcher.Constraint("Equal", 4, 6),
    Sketcher.Constraint("Equal", 5, 7),
    Sketcher.Constraint("Equal", 6, 8),
    Sketcher.Constraint("Equal", 7, 9),
    Sketcher.Constraint("Equal", 8, 10),
    Sketcher.Constraint("Equal", 9, 11),
    Sketcher.Constraint("Equal", 10, 12),
    Sketcher.Constraint("Equal", 11, 13),
    Sketcher.Constraint("Equal", 12, 14),
    Sketcher.Constraint("Equal", 13, 15),
    Sketcher.Constraint("Equal", 14, 16),
    Sketcher.Constraint("Equal", 15, 17),
    Sketcher.Constraint("Equal", 16, 18),
    Sketcher.Constraint("Equal", 17, 19),
    Sketcher.Constraint("Equal", 18, 20),
    Sketcher.Constraint("Equal", 19, 21),
    Sketcher.Constraint("Equal", 20, 22),
    Sketcher.Constraint("Equal", 21, 23),
    Sketcher.Constraint("Equal", 22, 24),
    Sketcher.Constraint("Equal", 23, 25),
    Sketcher.Constraint("Equal", 24, 26),
    Sketcher.Constraint("Equal", 25, 27),
    Sketcher.Constraint("Equal", 26, 28),
    Sketcher.Constraint("Equal", 27, 29),
    Sketcher.Constraint("Equal", 28, 30),
    Sketcher.Constraint("Equal", 29, 31),
    Sketcher.Constraint("Equal", 30, 32),
    Sketcher.Constraint("Equal", 31, 33),
    Sketcher.Constraint("Equal", 32, 34),
    Sketcher.Constraint("Equal", 33, 35),
    Sketcher.Constraint("Equal", 34, 36),
    Sketcher.Constraint("Equal", 35, 37),
    Sketcher.Constraint("Equal", 36, 38),
    Sketcher.Constraint("Equal", 37, 39),
    Sketcher.Constraint("Equal", 38, 40),
    Sketcher.Constraint("Equal", 39, 41),
    Sketcher.Constraint("Equal", 40, 42),
    Sketcher.Constraint("Equal", 41, 43),
    Sketcher.Constraint("Equal", 42, 44),
    Sketcher.Constraint("Equal", 43, 45),
    Sketcher.Constraint("Equal", 44, 46),
    Sketcher.Constraint("Equal", 45, 47),
    Sketcher.Constraint("Equal", 46, 48),
    Sketcher.Constraint("Equal", 47, 49),
    Sketcher.Constraint("Equal", 48, 50),
    Sketcher.Constraint("Equal", 49, 51),
    Sketcher.Constraint("Equal", 50, 52),
    Sketcher.Constraint("Equal", 51, 53),
    Sketcher.Constraint("Equal", 52, 54),
    Sketcher.Constraint("Equal", 53, 55),
    Sketcher.Constraint("Symmetric", 0, 3, 28, 3, -1, 1),
    Sketcher.Constraint("Symmetric", 2, 3, 30, 3, -1, 1),
    Sketcher.Constraint("Symmetric", 4, 3, 32, 3, -1, 1),
    Sketcher.Constraint("Symmetric", 6, 3, 34, 3, -1, 1),
    Sketcher.Constraint("Symmetric", 8, 3, 36, 3, -1, 1),
    Sketcher.Constraint("Symmetric", 10, 3, 38, 3, -1, 1),
    Sketcher.Constraint("Symmetric", 12, 3, 40, 3, -1, 1),
    Sketcher.Constraint("Symmetric", 14, 3, 42, 3, -1, 1),
    Sketcher.Constraint("Symmetric", 16, 3, 44, 3, -1, 1),
    Sketcher.Constraint("Symmetric", 18, 3, 46, 3, -1, 1),
    Sketcher.Constraint("Symmetric", 20, 3, 48, 3, -1, 1),
    Sketcher.Constraint("Symmetric", 22, 3, 50, 3, -1, 1),
    Sketcher.Constraint("Symmetric", 24, 3, 52, 3, -1, 1),
    Sketcher.Constraint("Symmetric", 26, 3, 54, 3, -1, 1),
    Sketcher.Constraint("Symmetric", 18, 3, 22, 3, -2),
    Sketcher.Constraint("Symmetric", 16, 3, 24, 3, -2),
    Sketcher.Constraint("Symmetric", 14, 3, 26, 3, -2),
    Sketcher.Constraint("Symmetric", 12, 3, 28, 3, -2),
    Sketcher.Constraint("Symmetric", 10, 3, 30, 3, -2),
    Sketcher.Constraint("Symmetric", 8, 3, 32, 3, -2),
    Sketcher.Constraint("PointOnObject", 6, 3, -1),
    Sketcher.Constraint("PointOnObject", 20, 3, -2),
    Sketcher.Constraint("Radius", 1, Q("0.22 in")),
    Sketcher.Constraint("Radius", 0, Q("0.015 in")),
    Sketcher.Constraint("DistanceX", 6, 3, -1, 1, Q("0.22 in")),
    Sketcher.Constraint("DistanceY", -1, 1, 20, 3, Q("0.22 in")),
    Sketcher.Constraint("DistanceX", 1, 1, -1, 1, 4.857698),
    Sketcher.Constraint("DistanceY", -1, 1, 15, 1, 4.857698),
    Sketcher.Constraint("DistanceY", 0, 3, -1, 1, 3.484061),
    Sketcher.Constraint("DistanceX", 14, 3, -1, 1, 3.484061),
    Sketcher.Constraint("DistanceX", 0, 1, -1, 1, 4.596131),
    Sketcher.Constraint("DistanceY", 3, 1, -1, 1, 1.611788),
    Sketcher.Constraint("DistanceX", 14, 1, -1, 1, 3.178258),
    Sketcher.Constraint("DistanceX", 17, 1, -1, 1, 1.611788),
    Sketcher.Constraint("DistanceX", 2, 3, -1, 1, 5.034614),
    Sketcher.Constraint("DistanceX", 4, 3, -1, 1, 5.447897),
    Sketcher.Constraint("DistanceX", 16, 3, -1, 1, 2.424542),
    Sketcher.Constraint("DistanceX", 18, 3, -1, 1, 1.243447),
])
sketch2.setExpression("Constraints[160]", "Params.sketch2_radius")
sketch2.setExpression("Constraints[161]", "Params.sketch2_radius2")
pad2 = body.newObject("PartDesign::Pad", "Pad001")
pad2.Profile = sketch2
pad2.setExpression("Length", "Params.pad2_length")
pad2.Reversed = True

sketch3 = body.newObject("Sketcher::SketchObject", "Sketch002")
sketch3.AttachmentSupport = (doc.getObject("XZ_Plane"), [""])
sketch3.MapMode = "FlatFace"
sketch3.AttachmentOffset = App.Placement(Vector(0, 0, -0.28 * 25.4), App.Rotation())
sketch3.addGeometry(Part.Circle(Vector(0, 0, 0), Vector(0, 0, 1), 8), False)
sketch3.addConstraint([
    Sketcher.Constraint("Coincident", 0, 3, -1, 1),
    Sketcher.Constraint("Diameter", 0, Q("0.66 in")),
])
sketch3.setExpression("Constraints[1]", "Params.sketch3_diameter")
pad3 = body.newObject("PartDesign::Pad", "Pad002")
pad3.Profile = sketch3
pad3.setExpression("Length", "Params.pad3_length")
pad3.Reversed = True

sketch4 = body.newObject("Sketcher::SketchObject", "Sketch003")
sketch4.AttachmentSupport = (doc.getObject("XZ_Plane"), [""])
sketch4.MapMode = "FlatFace"
sketch4.AttachmentOffset = App.Placement(Vector(0, 0, 0.3 * 25.4), App.Rotation())
sketch4.addGeometry(Part.Circle(Vector(0, 0, 0), Vector(0, 0, 1), 2.5), False)
sketch4.addConstraint([
    Sketcher.Constraint("Coincident", 0, 3, -1, 1),
    Sketcher.Constraint("Diameter", 0, Q("0.2 in")),
])
sketch4.setExpression("Constraints[1]", "Params.sketch4_diameter")
pocket1 = body.newObject("PartDesign::Pocket", "Pocket")
pocket1.Profile = sketch4
pocket1.Type = "ThroughAll"
pocket1.Midplane = True
doc.recompute()

chamfer = body.newObject("PartDesign::Chamfer", "Chamfer")
chamfer.Base = (pocket1, edges_at(pocket1, [(-2.54, 8.382, 0), (-2.54, -7.62, 0)]))
chamfer.setExpression("Size", "Params.chamfer_size")

sketch5 = body.newObject("Sketcher::SketchObject", "Sketch004")
sketch5.AttachmentSupport = (doc.getObject("YZ_Plane"), [""])
sketch5.MapMode = "FlatFace"
sketch5.addGeometry(Part.Circle(Vector(-3.8, 0, 0), Vector(0, 0, 1), 1.7), False)
sketch5.addConstraint([
    Sketcher.Constraint("PointOnObject", 0, 3, -1),
    Sketcher.Constraint("Diameter", 0, Q("0.13 in")),
    Sketcher.Constraint("DistanceX", 0, 3, -1, 1, Q("0.15 in")),
])
sketch5.setExpression("Constraints[1]", "Params.sketch5_diameter")
pocket2 = body.newObject("PartDesign::Pocket", "Pocket001")
pocket2.Profile = sketch5
pocket2.Type = "ThroughAll"

doc.recompute()
